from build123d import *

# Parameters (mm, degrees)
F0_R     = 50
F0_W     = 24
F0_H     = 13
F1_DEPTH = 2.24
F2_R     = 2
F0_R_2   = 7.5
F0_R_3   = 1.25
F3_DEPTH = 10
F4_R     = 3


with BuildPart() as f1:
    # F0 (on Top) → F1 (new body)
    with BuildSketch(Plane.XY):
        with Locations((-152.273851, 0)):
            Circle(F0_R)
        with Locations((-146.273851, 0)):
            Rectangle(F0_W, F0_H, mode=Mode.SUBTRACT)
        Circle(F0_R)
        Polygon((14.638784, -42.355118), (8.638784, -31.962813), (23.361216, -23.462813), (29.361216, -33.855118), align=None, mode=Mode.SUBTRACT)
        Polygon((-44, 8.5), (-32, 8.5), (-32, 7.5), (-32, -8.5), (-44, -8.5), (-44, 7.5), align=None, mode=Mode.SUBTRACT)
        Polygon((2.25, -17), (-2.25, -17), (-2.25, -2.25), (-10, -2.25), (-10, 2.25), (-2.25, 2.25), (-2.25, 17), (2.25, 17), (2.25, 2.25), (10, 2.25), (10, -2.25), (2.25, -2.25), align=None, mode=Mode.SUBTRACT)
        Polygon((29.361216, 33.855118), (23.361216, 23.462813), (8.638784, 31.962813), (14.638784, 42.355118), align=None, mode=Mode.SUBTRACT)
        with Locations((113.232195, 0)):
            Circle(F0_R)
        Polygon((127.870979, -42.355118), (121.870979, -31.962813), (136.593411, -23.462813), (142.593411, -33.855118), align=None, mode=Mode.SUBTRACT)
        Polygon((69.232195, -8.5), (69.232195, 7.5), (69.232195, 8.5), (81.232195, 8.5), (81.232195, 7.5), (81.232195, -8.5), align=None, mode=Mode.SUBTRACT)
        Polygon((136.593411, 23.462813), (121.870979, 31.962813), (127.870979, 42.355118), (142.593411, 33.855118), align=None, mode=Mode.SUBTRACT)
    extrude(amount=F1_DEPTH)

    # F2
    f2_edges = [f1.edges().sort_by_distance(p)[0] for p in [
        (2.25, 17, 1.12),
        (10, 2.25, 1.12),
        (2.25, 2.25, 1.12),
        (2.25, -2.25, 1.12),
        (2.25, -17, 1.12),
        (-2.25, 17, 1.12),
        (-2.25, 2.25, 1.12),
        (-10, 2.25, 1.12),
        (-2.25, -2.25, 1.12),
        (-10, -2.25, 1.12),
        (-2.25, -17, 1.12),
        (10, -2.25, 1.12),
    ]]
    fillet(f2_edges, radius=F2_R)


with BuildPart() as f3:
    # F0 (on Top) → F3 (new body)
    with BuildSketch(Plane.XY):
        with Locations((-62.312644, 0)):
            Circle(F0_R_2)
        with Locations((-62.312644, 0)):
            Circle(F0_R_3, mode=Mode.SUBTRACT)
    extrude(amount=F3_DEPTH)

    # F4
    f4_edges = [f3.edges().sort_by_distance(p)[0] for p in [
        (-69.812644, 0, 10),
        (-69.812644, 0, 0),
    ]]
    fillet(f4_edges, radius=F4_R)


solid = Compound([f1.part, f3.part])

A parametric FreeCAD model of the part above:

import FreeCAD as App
import Part
import Sketcher
from FreeCAD import Vector
Q = App.Units.Quantity


def edges_at(feature, points):
    """Names of the edges that pass closest to the given points."""
    edges = feature.Shape.Edges
    near = lambda p: min(range(len(edges)), key=lambda i: edges[i].distToShape(Part.Vertex(*p))[0])
    return sorted({f"Edge{near(p) + 1}" for p in points})


def add_polygon(sketch, points):
    """Adds a closed chain of lines whose ends are joined by coincident constraints."""
    first, n = sketch.GeometryCount, len(points)
    for a, b in zip(points, points[1:] + points[:1]):
        sketch.addGeometry(Part.LineSegment(App.Vector(*a, 0), App.Vector(*b, 0)), False)
    for i in range(n):
        sketch.addConstraint(Sketcher.Constraint("Coincident", first + i, 2, first + (i + 1) % n, 1))

doc = App.newDocument("Part")
params = doc.addObject("Spreadsheet::Sheet", "Params")
for row, (alias, value) in enumerate([
    ("sketch1_diameter", "100 mm"),
    ("sketch1_width", "24 mm"),
    ("sketch1_width2", "12 mm"),
    ("sketch1_height", "13 mm"),
    ("sketch1_height2", "17 mm"),
    ("pad1_length", "2.24 mm"),
    ("fillet_radius", "2 mm"),
    ("sketch2_diameter", "15 mm"),
    ("sketch2_diameter2", "2.5 mm"),
    ("pad2_length", "10 mm"),
    ("fillet2_radius", "3 mm"),
], start=1):
    params.set(f"A{row}", alias)
    params.set(f"B{row}", "=" + value)
    params.setAlias(f"B{row}", alias)

body = doc.addObject("PartDesign::Body", "Body")
body.AllowCompound = True

# Sketch on XY plane
sketch1 = body.newObject("Sketcher::SketchObject", "Sketch")
sketch1.AttachmentSupport = (doc.getObject("XY_Plane"), [""])
sketch1.MapMode = "FlatFace"
sketch1.addGeometry(Part.Circle(Vector(-152.3, 0, 0), Vector(0, 0, 1), 50), False)  # 0
add_polygon(sketch1, [(-134.3, -6.5), (-158.3, -6.5), (-158.3, 6.5), (-134.3, 6.5)])  # lines 1-4
sketch1.addGeometry(Part.Circle(Vector(0, 0, 0), Vector(0, 0, 1), 50), False)  # 5
add_polygon(sketch1, [(-44, -8.5), (-44, 8.5), (-32, 8.5), (-32, -8.5)])  # lines 6-9
add_polygon(sketch1, [(29.4, -33.9), (14.6, -42.4), (8.6, -32), (23.4, -23.5)])  # lines 10-13
add_polygon(sketch1, [(2.2, -2.2), (2.2, -17), (-2.2, -17), (-2.2, -2.2), (-10, -2.2), (-10, 2.2), (-2.2, 2.2), (-2.2, 17), (2.2, 17), (2.2, 2.2), (10, 2.2), (10, -2.2)])  # lines 14-25
add_polygon(sketch1, [(14.6, 42.4), (29.4, 33.9), (23.4, 23.5), (8.6, 32)])  # lines 26-29
sketch1.addGeometry(Part.Circle(Vector(113.2, 0, 0), Vector(0, 0, 1), 50), False)  # 30
add_polygon(sketch1, [(81.2, -8.5), (69.2, -8.5), (69.2, 8.5), (81.2, 8.5)])  # lines 31-34
add_polygon(sketch1, [(142.6, -33.9), (127.9, -42.4), (121.9, -32), (136.6, -23.5)])  # lines 35-38
add_polygon(sketch1, [(142.6, 33.9), (136.6, 23.5), (121.9, 32), (127.9, 42.4)])  # lines 39-42
sketch1.addConstraint([
    Sketcher.Constraint("Horizontal", 1),
    Sketcher.Constraint("Vertical", 2),
    Sketcher.Constraint("Horizontal", 3),
    Sketcher.Constraint("Vertical", 4),
    Sketcher.Constraint("Vertical", 6),
    Sketcher.Constraint("Horizontal", 7),
    Sketcher.Constraint("Vertical", 8),
    Sketcher.Constraint("Horizontal", 9),
    Sketcher.Constraint("Vertical", 14),
    Sketcher.Constraint("Horizontal", 15),
    Sketcher.Constraint("Vertical", 16),
    Sketcher.Constraint("Horizontal", 17),
    Sketcher.Constraint("Vertical", 18),
    Sketcher.Constraint("Horizontal", 19),
    Sketcher.Constraint("Vertical", 20),
    Sketcher.Constraint("Horizontal", 21),
    Sketcher.Constraint("Vertical", 22),
    Sketcher.Constraint("Horizontal", 23),
    Sketcher.Constraint("Vertical", 24),
    Sketcher.Constraint("Horizontal", 25),
    Sketcher.Constraint("Horizontal", 31),
    Sketcher.Constraint("Vertical", 32),
    Sketcher.Constraint("Horizontal", 33),
    Sketcher.Constraint("Vertical", 34),
    Sketcher.Constraint("Coincident", 5, 3, -1, 1),
    Sketcher.Constraint("Equal", 0, 5),
    Sketcher.Constraint("Equal", 5, 30),
    Sketcher.Constraint("Symmetric", 14, 2, 20, 2, -1, 1),
    Sketcher.Constraint("Symmetric", 16, 2, 22, 2, -1, 1),
    Sketcher.Constraint("Symmetric", 18, 2, 24, 2, -1, 1),
    Sketcher.Constraint("Symmetric", 19, 2, 22, 2, -2),
    Sketcher.Constraint("Symmetric", 13, 2, 26, 2, -1),
    Sketcher.Constraint("Symmetric", 12, 2, 27, 2, -1),
    Sketcher.Constraint("Symmetric", 11, 2, 28, 2, -1),
    Sketcher.Constraint("Symmetric", 10, 2, 29, 2, -1),
    Sketcher.Constraint("Symmetric", 37, 2, 39, 2, -1),
    Sketcher.Constraint("Symmetric", 36, 2, 40, 2, -1),
    Sketcher.Constraint("Symmetric", 35, 2, 41, 2, -1),
    Sketcher.Constraint("Symmetric", 38, 2, 42, 2, -1),
    Sketcher.Constraint("PointOnObject", 0, 3, -1),
    Sketcher.Constraint("PointOnObject", 30, 3, -1),
    Sketcher.Constraint("Perpendicular", 10, 11),
    Sketcher.Constraint("Perpendicular", 11, 12),
    Sketcher.Constraint("Perpendicular", 12, 13),
    Sketcher.Constraint("Perpendicular", 13, 35),
    Sketcher.Constraint("Perpendicular", 35, 36),
    Sketcher.Constraint("Perpendicular", 36, 37),
    Sketcher.Constraint("Perpendicular", 37, 38),
    Sketcher.Constraint("Horizontal", 9, 2, 31, 2),
    Sketcher.Constraint("Horizontal", 7, 2, 32, 2),
    Sketcher.Constraint("Horizontal", 10, 2, 35, 2),
    Sketcher.Constraint("Horizontal", 11, 2, 36, 2),
    Sketcher.Constraint("Horizontal", 12, 2, 37, 2),
    Sketcher.Constraint("Equal", 9, 31),
    Sketcher.Constraint("Equal", 21, 18),
    Sketcher.Constraint("Diameter", 0, 100.0),
    Sketcher.Constraint("DistanceX", 1, 2, 1, 1, 24.0),
    Sketcher.Constraint("DistanceX", 7, 1, 7, 2, 12.0),
    Sketcher.Constraint("DistanceY", 2, 1, 2, 2, 13.0),
    Sketcher.Constraint("DistanceY", 6, 1, 6, 2, 17.0),
    Sketcher.Constraint("Angle", 10, Q("-150 deg")),
    Sketcher.Constraint("Distance", 10, 17.0),
    Sketcher.Constraint("Distance", 11, 12.0),
    Sketcher.Constraint("DistanceX", 15, 2, 15, 1, 4.5),
    Sketcher.Constraint("DistanceX", 6, 2, -1, 1, 44.0),
    Sketcher.Constraint("DistanceY", 14, 2, -1, 1, 17.0),
    Sketcher.Constraint("DistanceX", 17, 2, -1, 1, 10.0),
    Sketcher.Constraint("DistanceX", 1, 2, 0, 3, 6.0),
    Sketcher.Constraint("DistanceY", 3, 2, 6, 2, 2.0),
    Sketcher.Constraint("DistanceX", 31, 2, 30, 3, 44.0),
    Sketcher.Constraint("DistanceY", 1, 2, -1, 1, 6.5),
    Sketcher.Constraint("DistanceX", 0, 3, -1, 1, 152.273851),
    Sketcher.Constraint("DistanceX", -1, 1, 35, 2, 127.870979),
    Sketcher.Constraint("DistanceX", 13, 2, 31, 2, 39.870979),
    Sketcher.Constraint("DistanceY", 38, 2, 39, 2, 57.317931),
    Sketcher.Constraint("DistanceX", -1, 1, 30, 3, 113.232195),
])
sketch1.setExpression("Constraints[95]", "Params.sketch1_diameter")
sketch1.setExpression("Constraints[96]", "Params.sketch1_width")
sketch1.setExpression("Constraints[97]", "Params.sketch1_width2")
sketch1.setExpression("Constraints[98]", "Params.sketch1_height")
sketch1.setExpression("Constraints[99]", "Params.sketch1_height2")
pad1 = body.newObject("PartDesign::Pad", "Pad")
pad1.Profile = sketch1
pad1.setExpression("Length", "Params.pad1_length")
doc.recompute()

fillet = body.newObject("PartDesign::Fillet", "Fillet")
fillet.Base = (pad1, edges_at(pad1, [
    (2.25, 17, 1.12),
    (10, 2.25, 1.12),
    (2.25, 2.25, 1.12),
    (2.25, -2.25, 1.12),
    (2.25, -17, 1.12),
    (-2.25, 17, 1.12),
    (-2.25, 2.25, 1.12),
    (-10, 2.25, 1.12),
    (-2.25, -2.25, 1.12),
    (-10, -2.25, 1.12),
    (-2.25, -17, 1.12),
    (10, -2.25, 1.12),
]))
fillet.setExpression("Radius", "Params.fillet_radius")
body2 = doc.addObject("PartDesign::Body", "Body001")

# Sketch on XY plane
sketch2 = body2.newObject("Sketcher::SketchObject", "Sketch001")
sketch2.AttachmentSupport = (doc.getObject("XY_Plane001"), [""])
sketch2.MapMode = "FlatFace"
sketch2.addGeometry([
    Part.Circle(Vector(-62.3, 0, 0), Vector(0, 0, 1), 7.5),
    Part.Circle(Vector(-62.3, 0, 0), Vector(0, 0, 1), 1.2),
], False)
sketch2.addConstraint([
    Sketcher.Constraint("Coincident", 1, 3, 0, 3),
    Sketcher.Constraint("PointOnObject", 0, 3, -1),
    Sketcher.Constraint("Diameter", 0, 15.0),
    Sketcher.Constraint("Diameter", 1, 2.5),
    Sketcher.Constraint("DistanceX", 0, 3, -1, 1, 62.312644),
])
sketch2.setExpression("Constraints[2]", "Params.sketch2_diameter")
sketch2.setExpression("Constraints[3]", "Params.sketch2_diameter2")
pad2 = body2.newObject("PartDesign::Pad", "Pad001")
pad2.Profile = sketch2
pad2.setExpression("Length", "Params.pad2_length")
doc.recompute()

fillet2 = body2.newObject("PartDesign::Fillet", "Fillet001")
fillet2.Base = (pad2, edges_at(pad2, [(-69.813, 0, 10), (-69.813, 0, 0)]))
fillet2.setExpression("Radius", "Params.fillet2_radius")

doc.recompute()
